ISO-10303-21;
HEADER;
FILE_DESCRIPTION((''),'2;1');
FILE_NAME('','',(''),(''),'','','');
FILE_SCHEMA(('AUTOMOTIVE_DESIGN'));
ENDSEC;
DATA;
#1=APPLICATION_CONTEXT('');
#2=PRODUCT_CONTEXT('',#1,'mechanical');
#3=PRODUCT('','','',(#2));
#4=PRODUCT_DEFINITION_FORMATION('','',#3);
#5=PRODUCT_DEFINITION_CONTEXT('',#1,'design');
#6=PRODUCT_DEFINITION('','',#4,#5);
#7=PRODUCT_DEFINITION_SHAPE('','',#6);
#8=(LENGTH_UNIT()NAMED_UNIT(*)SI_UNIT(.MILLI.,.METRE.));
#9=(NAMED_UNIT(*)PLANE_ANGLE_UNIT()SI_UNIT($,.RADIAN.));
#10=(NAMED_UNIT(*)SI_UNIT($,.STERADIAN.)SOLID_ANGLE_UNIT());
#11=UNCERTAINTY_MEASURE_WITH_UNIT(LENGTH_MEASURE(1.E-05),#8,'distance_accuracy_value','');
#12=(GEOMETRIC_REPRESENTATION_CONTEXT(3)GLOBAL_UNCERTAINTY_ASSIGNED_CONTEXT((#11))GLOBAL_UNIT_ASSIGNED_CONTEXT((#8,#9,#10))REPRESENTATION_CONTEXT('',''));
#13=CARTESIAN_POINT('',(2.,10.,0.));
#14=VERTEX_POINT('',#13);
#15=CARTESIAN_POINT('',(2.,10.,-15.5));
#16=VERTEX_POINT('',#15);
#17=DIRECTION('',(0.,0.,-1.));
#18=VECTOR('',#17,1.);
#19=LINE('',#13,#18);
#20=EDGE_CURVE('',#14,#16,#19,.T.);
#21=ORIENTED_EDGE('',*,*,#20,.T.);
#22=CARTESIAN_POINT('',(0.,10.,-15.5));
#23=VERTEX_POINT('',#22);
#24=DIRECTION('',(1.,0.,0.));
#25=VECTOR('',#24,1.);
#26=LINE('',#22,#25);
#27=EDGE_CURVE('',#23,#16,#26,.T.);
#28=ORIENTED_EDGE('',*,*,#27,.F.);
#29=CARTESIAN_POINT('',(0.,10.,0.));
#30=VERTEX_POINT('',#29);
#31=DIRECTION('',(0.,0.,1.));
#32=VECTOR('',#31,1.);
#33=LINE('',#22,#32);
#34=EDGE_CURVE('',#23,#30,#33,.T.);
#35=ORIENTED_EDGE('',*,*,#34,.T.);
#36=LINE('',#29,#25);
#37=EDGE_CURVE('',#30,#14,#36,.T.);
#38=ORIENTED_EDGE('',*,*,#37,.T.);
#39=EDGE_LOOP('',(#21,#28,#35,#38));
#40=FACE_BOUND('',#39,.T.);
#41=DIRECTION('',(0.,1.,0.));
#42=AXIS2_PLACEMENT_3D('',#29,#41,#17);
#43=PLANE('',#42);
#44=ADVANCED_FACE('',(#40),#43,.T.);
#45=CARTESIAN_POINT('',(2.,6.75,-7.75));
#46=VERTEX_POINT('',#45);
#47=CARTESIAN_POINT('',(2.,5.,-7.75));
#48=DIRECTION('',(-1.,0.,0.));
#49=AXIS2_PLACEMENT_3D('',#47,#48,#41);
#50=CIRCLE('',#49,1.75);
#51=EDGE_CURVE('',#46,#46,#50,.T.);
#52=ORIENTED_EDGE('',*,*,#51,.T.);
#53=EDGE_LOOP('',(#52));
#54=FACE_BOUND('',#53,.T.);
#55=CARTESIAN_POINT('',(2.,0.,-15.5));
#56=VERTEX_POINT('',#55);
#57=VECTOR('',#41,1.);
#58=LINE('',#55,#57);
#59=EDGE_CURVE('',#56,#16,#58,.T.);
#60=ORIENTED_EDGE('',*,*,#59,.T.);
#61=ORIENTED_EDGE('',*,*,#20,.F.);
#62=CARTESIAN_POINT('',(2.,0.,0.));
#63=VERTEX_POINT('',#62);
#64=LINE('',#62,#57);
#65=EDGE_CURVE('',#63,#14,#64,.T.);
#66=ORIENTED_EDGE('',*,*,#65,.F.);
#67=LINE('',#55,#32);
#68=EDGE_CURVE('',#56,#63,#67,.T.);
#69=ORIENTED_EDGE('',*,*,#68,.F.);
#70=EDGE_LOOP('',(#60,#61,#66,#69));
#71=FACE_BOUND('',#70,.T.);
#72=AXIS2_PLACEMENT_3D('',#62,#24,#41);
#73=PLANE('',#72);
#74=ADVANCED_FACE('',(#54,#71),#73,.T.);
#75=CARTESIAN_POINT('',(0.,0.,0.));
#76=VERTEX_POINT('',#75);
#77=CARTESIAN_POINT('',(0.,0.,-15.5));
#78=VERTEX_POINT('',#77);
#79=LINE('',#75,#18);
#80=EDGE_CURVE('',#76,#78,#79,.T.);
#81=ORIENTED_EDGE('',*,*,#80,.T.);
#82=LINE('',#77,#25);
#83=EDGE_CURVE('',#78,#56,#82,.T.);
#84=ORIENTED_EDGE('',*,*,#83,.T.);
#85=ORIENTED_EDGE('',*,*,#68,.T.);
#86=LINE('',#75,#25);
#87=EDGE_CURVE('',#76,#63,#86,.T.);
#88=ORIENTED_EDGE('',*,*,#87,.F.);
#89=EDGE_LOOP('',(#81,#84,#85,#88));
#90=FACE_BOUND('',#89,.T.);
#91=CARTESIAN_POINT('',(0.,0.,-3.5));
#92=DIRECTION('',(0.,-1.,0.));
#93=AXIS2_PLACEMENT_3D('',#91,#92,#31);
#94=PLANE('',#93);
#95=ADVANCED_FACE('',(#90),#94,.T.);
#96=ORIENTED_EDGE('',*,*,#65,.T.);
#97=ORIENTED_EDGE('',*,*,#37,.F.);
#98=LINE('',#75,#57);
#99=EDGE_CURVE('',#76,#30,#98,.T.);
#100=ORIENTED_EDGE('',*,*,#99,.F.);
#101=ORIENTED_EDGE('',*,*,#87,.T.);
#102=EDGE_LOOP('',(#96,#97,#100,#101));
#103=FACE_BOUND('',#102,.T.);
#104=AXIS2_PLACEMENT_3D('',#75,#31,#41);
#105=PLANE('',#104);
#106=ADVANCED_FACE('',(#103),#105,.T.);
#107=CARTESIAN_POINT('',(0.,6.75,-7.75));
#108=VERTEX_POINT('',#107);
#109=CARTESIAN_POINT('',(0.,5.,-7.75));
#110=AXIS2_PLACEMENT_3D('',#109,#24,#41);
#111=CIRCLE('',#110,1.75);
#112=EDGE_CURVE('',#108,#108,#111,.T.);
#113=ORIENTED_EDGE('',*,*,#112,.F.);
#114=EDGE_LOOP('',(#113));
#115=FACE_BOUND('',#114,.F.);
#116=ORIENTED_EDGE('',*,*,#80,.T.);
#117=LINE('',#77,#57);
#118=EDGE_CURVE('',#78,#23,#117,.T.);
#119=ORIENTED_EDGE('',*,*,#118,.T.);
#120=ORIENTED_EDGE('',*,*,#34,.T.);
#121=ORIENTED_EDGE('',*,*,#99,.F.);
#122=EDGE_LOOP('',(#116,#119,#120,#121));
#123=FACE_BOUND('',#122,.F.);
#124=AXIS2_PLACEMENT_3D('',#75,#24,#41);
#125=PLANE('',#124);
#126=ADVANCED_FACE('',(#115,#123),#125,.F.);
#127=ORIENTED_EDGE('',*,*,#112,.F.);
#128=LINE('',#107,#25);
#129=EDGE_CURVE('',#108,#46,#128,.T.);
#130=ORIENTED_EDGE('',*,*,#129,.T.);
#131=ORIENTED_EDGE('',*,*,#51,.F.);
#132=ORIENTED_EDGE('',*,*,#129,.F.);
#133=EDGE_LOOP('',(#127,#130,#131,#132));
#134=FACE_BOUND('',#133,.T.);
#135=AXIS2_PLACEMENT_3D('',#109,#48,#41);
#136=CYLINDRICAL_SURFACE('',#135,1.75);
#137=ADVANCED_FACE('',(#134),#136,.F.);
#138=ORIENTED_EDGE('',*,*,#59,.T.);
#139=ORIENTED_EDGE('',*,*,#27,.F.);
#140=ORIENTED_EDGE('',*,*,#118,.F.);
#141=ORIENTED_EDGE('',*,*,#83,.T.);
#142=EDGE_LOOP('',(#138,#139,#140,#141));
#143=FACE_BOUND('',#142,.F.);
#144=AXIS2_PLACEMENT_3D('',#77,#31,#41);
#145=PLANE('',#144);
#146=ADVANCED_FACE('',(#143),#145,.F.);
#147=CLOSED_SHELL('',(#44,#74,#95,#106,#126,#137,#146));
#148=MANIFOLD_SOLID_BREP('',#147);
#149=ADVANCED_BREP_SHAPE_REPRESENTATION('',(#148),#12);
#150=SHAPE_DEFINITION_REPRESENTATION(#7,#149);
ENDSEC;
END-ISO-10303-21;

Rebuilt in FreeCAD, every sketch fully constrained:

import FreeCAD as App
import Part
import Sketcher
from FreeCAD import Vector
Q = App.Units.Quantity

doc = App.newDocument("Part")
body = doc.addObject("PartDesign::Body", "Body")

# Sketch on YZ plane
sketch1 = doc.addObject("Sketcher::SketchObject", "Sketch")
body.addObject(sketch1)
sketch1.AttachmentSupport = (doc.YZ_Plane, [""])
sketch1.MapMode = "FlatFace"
sketch1.addGeometry(Part.LineSegment(Vector(10, 0, 0), Vector(0, 0, 0)), False)
sketch1.addGeometry(Part.LineSegment(Vector(0, 0, 0), Vector(0, -15.5, 0)), False)
sketch1.addGeometry(Part.LineSegment(Vector(0, -15.5, 0), Vector(10, -15.5, 0)), False)
sketch1.addGeometry(Part.LineSegment(Vector(10, -15.5, 0), Vector(10, 0, 0)), False)
sketch1.addGeometry(Part.Circle(Vector(5, -7.8, 0), Vector(0, 0, 1), 1.8), False)
sketch1.addConstraint(Sketcher.Constraint("Coincident", 0, 2, 1, 1))
sketch1.addConstraint(Sketcher.Constraint("Coincident", 1, 2, 2, 1))
sketch1.addConstraint(Sketcher.Constraint("Coincident", 2, 2, 3, 1))
sketch1.addConstraint(Sketcher.Constraint("Coincident", 3, 2, 0, 1))
sketch1.addConstraint(Sketcher.Constraint("Horizontal", 0))
sketch1.addConstraint(Sketcher.Constraint("Vertical", 1))
sketch1.addConstraint(Sketcher.Constraint("Horizontal", 2))
sketch1.addConstraint(Sketcher.Constraint("Vertical", 3))
sketch1.addConstraint(Sketcher.Constraint("Coincident", 0, 2, -1, 1))
sketch1.addConstraint(Sketcher.Constraint("Diameter", 4, Q("3.5 mm")))
sketch1.addConstraint(Sketcher.Constraint("DistanceX", 0, 2, 0, 1, Q("10 mm")))
sketch1.addConstraint(Sketcher.Constraint("DistanceY", 1, 2, 1, 1, Q("15.5 mm")))
sketch1.addConstraint(Sketcher.Constraint("DistanceX", -1, 1, 4, 3, Q("5 mm")))
sketch1.addConstraint(Sketcher.Constraint("DistanceY", 4, 3, -1, 1, Q("7.75 mm")))
pad1 = doc.addObject("PartDesign::Pad", "Pad")
body.addObject(pad1)
pad1.Profile = sketch1
pad1.Length = 2

doc.recompute()
